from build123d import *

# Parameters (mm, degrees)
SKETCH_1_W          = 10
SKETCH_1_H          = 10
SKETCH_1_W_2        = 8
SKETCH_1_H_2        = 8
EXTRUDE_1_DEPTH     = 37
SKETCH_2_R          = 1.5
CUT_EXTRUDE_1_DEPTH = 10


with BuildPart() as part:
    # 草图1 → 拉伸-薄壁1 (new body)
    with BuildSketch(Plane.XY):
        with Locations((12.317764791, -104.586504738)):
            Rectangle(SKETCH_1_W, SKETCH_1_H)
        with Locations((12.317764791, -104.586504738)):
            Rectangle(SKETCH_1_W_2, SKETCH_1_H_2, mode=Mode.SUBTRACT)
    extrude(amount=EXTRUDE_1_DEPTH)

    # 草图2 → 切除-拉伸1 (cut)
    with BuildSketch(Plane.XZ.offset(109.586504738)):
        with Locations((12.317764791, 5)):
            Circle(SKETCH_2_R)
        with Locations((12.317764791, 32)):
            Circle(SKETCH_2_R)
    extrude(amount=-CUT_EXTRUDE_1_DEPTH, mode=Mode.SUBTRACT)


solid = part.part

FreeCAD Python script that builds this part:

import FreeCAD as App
import Part
import Sketcher

doc = App.newDocument("Part")
body = doc.addObject("PartDesign::Body", "Body")

sketch1 = doc.addObject("Sketcher::SketchObject", "Sketch")
body.addObject(sketch1)
sketch1.AttachmentSupport = (doc.XY_Plane, [""])
sketch1.MapMode = "FlatFace"
sketch1.addGeometry(Part.LineSegment(App.Vector(7, -100, 0), App.Vector(7, -110, 0)), False)
sketch1.addGeometry(Part.LineSegment(App.Vector(7, -110, 0), App.Vector(17, -110, 0)), False)
sketch1.addGeometry(Part.LineSegment(App.Vector(17, -110, 0), App.Vector(17, -100, 0)), False)
sketch1.addGeometry(Part.LineSegment(App.Vector(17, -100, 0), App.Vector(7, -100, 0)), False)
sketch1.addGeometry(Part.LineSegment(App.Vector(16, -109, 0), App.Vector(8, -109, 0)), False)
sketch1.addGeometry(Part.LineSegment(App.Vector(8, -109, 0), App.Vector(8, -101, 0)), False)
sketch1.addGeometry(Part.LineSegment(App.Vector(8, -101, 0), App.Vector(16, -101, 0)), False)
sketch1.addGeometry(Part.LineSegment(App.Vector(16, -101, 0), App.Vector(16, -109, 0)), False)
sketch1.addConstraint(Sketcher.Constraint("Coincident", 0, 2, 1, 1))
sketch1.addConstraint(Sketcher.Constraint("Coincident", 1, 2, 2, 1))
sketch1.addConstraint(Sketcher.Constraint("Coincident", 2, 2, 3, 1))
sketch1.addConstraint(Sketcher.Constraint("Coincident", 3, 2, 0, 1))
sketch1.addConstraint(Sketcher.Constraint("Coincident", 4, 2, 5, 1))
sketch1.addConstraint(Sketcher.Constraint("Coincident", 5, 2, 6, 1))
sketch1.addConstraint(Sketcher.Constraint("Coincident", 6, 2, 7, 1))
sketch1.addConstraint(Sketcher.Constraint("Coincident", 7, 2, 4, 1))
sketch1.addConstraint(Sketcher.Constraint("Vertical", 0))
sketch1.addConstraint(Sketcher.Constraint("Horizontal", 1))
sketch1.addConstraint(Sketcher.Constraint("Vertical", 2))
sketch1.addConstraint(Sketcher.Constraint("Horizontal", 3))
sketch1.addConstraint(Sketcher.Constraint("Horizontal", 4))
sketch1.addConstraint(Sketcher.Constraint("Vertical", 5))
sketch1.addConstraint(Sketcher.Constraint("Horizontal", 6))
sketch1.addConstraint(Sketcher.Constraint("Vertical", 7))
sketch1.addConstraint(Sketcher.Constraint("Equal", 3, 0))
sketch1.addConstraint(Sketcher.Constraint("Equal", 6, 5))
sketch1.addConstraint(Sketcher.Constraint("DistanceX", 1, 1, 1, 2, 10.0))
sketch1.addConstraint(Sketcher.Constraint("DistanceX", 4, 2, 4, 1, 8.0))
sketch1.addConstraint(Sketcher.Constraint("DistanceX", 0, 2, 4, 2, 1.0))
sketch1.addConstraint(Sketcher.Constraint("DistanceY", 0, 2, 4, 2, 1.0))
sketch1.addConstraint(Sketcher.Constraint("DistanceX", -1, 1, 0, 2, 7.317765))
sketch1.addConstraint(Sketcher.Constraint("DistanceY", 0, 2, -1, 1, 109.586505))
pad1 = doc.addObject("PartDesign::Pad", "Pad")
body.addObject(pad1)
pad1.Profile = sketch1
pad1.Length = 37

sketch2 = doc.addObject("Sketcher::SketchObject", "Sketch001")
body.addObject(sketch2)
sketch2.AttachmentSupport = (doc.XZ_Plane, [""])
sketch2.MapMode = "FlatFace"
sketch2.AttachmentOffset = App.Placement(App.Vector(0, 0, 109.586505), App.Rotation())
sketch2.addGeometry(Part.Circle(App.Vector(12.3, 5, 0), App.Vector(0, 0, 1), 1.5), False)
sketch2.addGeometry(Part.Circle(App.Vector(12.3, 32, 0), App.Vector(0, 0, 1), 1.5), False)
sketch2.addConstraint(Sketcher.Constraint("Equal", 0, 1))
sketch2.addConstraint(Sketcher.Constraint("Vertical", 0, 3, 1, 3))
sketch2.addConstraint(Sketcher.Constraint("Diameter", 0, 3.0))
sketch2.addConstraint(Sketcher.Constraint("DistanceY", -1, 1, 0, 3, 5.0))
sketch2.addConstraint(Sketcher.Constraint("DistanceY", -1, 1, 1, 3, 32.0))
sketch2.addConstraint(Sketcher.Constraint("DistanceX", -1, 1, 0, 3, 12.317765))
pocket1 = doc.addObject("PartDesign::Pocket", "Pocket")
body.addObject(pocket1)
pocket1.Profile = sketch2
pocket1.Length = 10

doc.recompute()
